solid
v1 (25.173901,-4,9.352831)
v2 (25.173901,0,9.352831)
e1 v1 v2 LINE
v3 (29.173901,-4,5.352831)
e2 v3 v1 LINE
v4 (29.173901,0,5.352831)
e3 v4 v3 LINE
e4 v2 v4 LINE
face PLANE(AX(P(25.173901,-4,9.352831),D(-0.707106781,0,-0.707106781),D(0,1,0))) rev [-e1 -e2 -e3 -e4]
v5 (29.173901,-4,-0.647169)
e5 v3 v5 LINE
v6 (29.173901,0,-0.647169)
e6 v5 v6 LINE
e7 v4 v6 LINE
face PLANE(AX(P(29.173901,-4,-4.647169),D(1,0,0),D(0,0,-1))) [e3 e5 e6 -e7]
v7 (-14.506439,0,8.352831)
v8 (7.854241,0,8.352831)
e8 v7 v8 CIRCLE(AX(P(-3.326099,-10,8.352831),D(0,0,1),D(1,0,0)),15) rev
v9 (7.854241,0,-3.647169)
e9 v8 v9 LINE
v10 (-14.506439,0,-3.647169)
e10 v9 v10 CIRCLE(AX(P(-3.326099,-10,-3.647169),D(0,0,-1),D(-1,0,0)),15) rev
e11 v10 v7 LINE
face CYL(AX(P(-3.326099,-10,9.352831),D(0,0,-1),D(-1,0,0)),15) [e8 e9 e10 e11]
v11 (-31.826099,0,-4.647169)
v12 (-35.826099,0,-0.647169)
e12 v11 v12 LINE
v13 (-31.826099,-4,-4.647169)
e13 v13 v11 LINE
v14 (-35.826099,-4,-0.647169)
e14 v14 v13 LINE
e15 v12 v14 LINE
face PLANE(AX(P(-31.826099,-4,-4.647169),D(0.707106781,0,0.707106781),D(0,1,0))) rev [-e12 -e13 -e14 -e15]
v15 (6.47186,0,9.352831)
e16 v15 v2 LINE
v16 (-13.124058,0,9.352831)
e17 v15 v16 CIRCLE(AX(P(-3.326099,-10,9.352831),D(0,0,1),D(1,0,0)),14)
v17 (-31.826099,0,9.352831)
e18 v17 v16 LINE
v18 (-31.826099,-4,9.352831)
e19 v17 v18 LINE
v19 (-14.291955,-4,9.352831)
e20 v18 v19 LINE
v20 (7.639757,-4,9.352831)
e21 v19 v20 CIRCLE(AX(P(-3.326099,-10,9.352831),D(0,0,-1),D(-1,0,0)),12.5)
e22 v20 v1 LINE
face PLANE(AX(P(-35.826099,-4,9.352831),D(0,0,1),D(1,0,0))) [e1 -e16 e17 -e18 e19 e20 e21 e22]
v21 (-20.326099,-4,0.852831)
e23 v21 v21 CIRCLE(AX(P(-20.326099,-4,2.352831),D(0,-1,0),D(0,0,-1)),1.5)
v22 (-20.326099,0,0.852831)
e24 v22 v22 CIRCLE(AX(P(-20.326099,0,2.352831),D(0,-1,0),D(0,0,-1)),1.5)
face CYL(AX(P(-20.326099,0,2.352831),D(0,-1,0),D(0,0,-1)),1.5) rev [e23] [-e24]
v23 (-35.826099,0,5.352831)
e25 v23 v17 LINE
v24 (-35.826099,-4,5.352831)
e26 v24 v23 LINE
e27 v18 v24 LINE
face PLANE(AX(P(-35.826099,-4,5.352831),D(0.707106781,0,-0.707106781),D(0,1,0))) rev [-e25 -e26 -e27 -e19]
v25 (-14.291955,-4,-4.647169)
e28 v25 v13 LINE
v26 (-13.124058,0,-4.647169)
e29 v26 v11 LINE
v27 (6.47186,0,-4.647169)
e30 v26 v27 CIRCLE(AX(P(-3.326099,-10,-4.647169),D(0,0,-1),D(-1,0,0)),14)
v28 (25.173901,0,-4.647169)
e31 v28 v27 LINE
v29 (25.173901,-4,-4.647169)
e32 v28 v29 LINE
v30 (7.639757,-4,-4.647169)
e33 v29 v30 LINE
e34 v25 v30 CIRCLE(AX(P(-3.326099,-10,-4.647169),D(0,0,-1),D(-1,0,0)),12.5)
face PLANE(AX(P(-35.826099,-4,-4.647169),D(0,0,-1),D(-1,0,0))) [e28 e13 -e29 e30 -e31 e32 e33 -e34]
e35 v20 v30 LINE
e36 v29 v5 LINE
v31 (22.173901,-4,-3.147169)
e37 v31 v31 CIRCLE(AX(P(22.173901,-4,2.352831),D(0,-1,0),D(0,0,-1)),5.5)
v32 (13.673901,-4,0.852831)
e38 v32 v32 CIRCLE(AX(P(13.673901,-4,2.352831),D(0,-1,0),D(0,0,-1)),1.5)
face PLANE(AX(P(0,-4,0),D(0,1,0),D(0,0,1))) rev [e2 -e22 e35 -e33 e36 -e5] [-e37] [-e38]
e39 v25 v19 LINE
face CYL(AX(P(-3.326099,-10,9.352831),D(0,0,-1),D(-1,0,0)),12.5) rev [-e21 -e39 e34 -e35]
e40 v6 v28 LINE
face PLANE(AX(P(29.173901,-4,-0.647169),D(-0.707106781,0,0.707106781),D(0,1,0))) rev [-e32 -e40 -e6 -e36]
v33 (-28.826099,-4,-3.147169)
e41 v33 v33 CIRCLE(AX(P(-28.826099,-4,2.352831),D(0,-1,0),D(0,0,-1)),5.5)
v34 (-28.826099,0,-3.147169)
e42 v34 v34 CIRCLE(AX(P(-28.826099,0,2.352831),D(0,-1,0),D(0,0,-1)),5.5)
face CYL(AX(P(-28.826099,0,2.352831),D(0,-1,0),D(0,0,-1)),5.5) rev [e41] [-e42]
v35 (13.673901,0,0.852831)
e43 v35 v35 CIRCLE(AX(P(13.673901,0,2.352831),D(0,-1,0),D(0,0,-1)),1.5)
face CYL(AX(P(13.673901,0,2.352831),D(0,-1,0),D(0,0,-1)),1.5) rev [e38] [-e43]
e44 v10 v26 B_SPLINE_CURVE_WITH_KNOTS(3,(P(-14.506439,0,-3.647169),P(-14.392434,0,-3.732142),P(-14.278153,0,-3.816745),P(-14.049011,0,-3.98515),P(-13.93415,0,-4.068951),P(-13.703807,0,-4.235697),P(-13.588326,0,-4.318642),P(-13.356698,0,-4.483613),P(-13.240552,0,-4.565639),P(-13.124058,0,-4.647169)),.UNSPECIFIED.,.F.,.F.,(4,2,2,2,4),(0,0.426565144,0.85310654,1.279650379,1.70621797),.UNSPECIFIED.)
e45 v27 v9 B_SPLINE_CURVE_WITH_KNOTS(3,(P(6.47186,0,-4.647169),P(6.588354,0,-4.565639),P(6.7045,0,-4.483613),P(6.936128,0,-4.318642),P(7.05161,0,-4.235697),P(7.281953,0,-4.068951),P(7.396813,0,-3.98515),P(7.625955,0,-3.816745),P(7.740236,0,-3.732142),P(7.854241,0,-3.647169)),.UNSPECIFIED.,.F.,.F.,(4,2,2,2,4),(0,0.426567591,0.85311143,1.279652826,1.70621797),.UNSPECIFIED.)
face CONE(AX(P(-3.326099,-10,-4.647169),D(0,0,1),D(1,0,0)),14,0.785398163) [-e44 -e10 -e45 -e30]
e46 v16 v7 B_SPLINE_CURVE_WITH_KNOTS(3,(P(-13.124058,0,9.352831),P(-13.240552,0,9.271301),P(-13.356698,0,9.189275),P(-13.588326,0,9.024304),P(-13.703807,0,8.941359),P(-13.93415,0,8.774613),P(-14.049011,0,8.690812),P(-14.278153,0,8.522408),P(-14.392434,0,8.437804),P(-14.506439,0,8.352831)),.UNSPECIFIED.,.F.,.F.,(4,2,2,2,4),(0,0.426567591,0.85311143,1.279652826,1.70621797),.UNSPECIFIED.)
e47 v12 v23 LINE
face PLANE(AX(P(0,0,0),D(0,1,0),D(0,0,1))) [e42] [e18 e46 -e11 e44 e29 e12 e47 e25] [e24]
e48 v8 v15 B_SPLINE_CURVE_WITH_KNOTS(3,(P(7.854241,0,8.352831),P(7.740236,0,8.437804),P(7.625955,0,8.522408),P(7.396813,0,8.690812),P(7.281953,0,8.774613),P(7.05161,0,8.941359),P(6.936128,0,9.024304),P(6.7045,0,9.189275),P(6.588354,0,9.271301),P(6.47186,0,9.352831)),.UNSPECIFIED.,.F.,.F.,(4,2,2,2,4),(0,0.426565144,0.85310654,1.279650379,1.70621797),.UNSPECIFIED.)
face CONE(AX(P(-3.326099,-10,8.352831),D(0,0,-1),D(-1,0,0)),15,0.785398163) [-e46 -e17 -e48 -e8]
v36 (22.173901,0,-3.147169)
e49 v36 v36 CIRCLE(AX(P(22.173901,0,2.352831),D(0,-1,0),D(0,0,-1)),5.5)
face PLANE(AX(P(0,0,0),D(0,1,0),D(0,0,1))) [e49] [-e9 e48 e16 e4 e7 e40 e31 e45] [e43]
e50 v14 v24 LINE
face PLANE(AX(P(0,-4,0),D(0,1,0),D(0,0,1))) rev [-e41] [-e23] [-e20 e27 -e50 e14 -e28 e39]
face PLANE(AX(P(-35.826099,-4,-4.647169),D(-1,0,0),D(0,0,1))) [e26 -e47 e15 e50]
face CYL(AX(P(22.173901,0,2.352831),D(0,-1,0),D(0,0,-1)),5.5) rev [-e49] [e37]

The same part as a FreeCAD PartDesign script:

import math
import FreeCAD as App
import Part
import Sketcher
from FreeCAD import Vector


def edges_at(feature, points):
    """Names of the edges that pass closest to the given points."""
    edges = feature.Shape.Edges
    near = lambda p: min(range(len(edges)), key=lambda i: edges[i].distToShape(Part.Vertex(*p))[0])
    return sorted({f"Edge{near(p) + 1}" for p in points})


def add_polygon(sketch, points):
    """Adds a closed chain of lines whose ends are joined by coincident constraints."""
    first, n = sketch.GeometryCount, len(points)
    for a, b in zip(points, points[1:] + points[:1]):
        sketch.addGeometry(Part.LineSegment(App.Vector(*a, 0), App.Vector(*b, 0)), False)
    for i in range(n):
        sketch.addConstraint(Sketcher.Constraint("Coincident", first + i, 2, first + (i + 1) % n, 1))

doc = App.newDocument("Part")
body = doc.addObject("PartDesign::Body", "Body")

sketch1 = doc.addObject("Sketcher::SketchObject", "Sketch")
body.addObject(sketch1)
sketch1.AttachmentSupport = (doc.XZ_Plane, [""])
sketch1.MapMode = "FlatFace"
add_polygon(sketch1, [(-36, -5), (-36, 9), (29, 9), (29, -5)])
sketch1.addConstraint(Sketcher.Constraint("Vertical", 0))
sketch1.addConstraint(Sketcher.Constraint("Horizontal", 1))
sketch1.addConstraint(Sketcher.Constraint("Vertical", 2))
sketch1.addConstraint(Sketcher.Constraint("Horizontal", 3))
sketch1.addConstraint(Sketcher.Constraint("DistanceX", 1, 1, 1, 2, 65.0))
sketch1.addConstraint(Sketcher.Constraint("DistanceY", 0, 1, 0, 2, 14.0))
sketch1.addConstraint(Sketcher.Constraint("DistanceX", 0, 2, -1, 1, 35.826099))
sketch1.addConstraint(Sketcher.Constraint("DistanceY", -1, 1, 0, 2, 9.352831))
pad1 = doc.addObject("PartDesign::Pad", "Pad")
body.addObject(pad1)
pad1.Profile = sketch1
pad1.Length = 4

sketch2 = doc.addObject("Sketcher::SketchObject", "Sketch001")
body.addObject(sketch2)
sketch2.AttachmentSupport = (doc.XZ_Plane, [""])
sketch2.MapMode = "FlatFace"
sketch2.AttachmentOffset = App.Placement(Vector(0, 0, 4), App.Rotation())
sketch2.addGeometry(Part.Circle(Vector(-28.8, 2.4, 0), Vector(0, 0, 1), 5.5), False)
sketch2.addGeometry(Part.Circle(Vector(22.2, 2.4, 0), Vector(0, 0, 1), 5.5), False)
sketch2.addGeometry(Part.Circle(Vector(-20.3, 2.4, 0), Vector(0, 0, 1), 1.5), False)
sketch2.addGeometry(Part.Circle(Vector(13.7, 2.4, 0), Vector(0, 0, 1), 1.5), False)
sketch2.addConstraint(Sketcher.Constraint("Equal", 0, 1))
sketch2.addConstraint(Sketcher.Constraint("Equal", 2, 3))
sketch2.addConstraint(Sketcher.Constraint("Horizontal", 0, 3, 1, 3))
sketch2.addConstraint(Sketcher.Constraint("Horizontal", 1, 3, 2, 3))
sketch2.addConstraint(Sketcher.Constraint("Horizontal", 2, 3, 3, 3))
sketch2.addConstraint(Sketcher.Constraint("Diameter", 0, 11.0))
sketch2.addConstraint(Sketcher.Constraint("Diameter", 2, 3.0))
sketch2.addConstraint(Sketcher.Constraint("DistanceX", 0, 3, 1, 3, 51.0))
sketch2.addConstraint(Sketcher.Constraint("DistanceX", 2, 3, 3, 3, 34.0))
sketch2.addConstraint(Sketcher.Constraint("DistanceX", 0, 3, 2, 3, 8.5))
sketch2.addConstraint(Sketcher.Constraint("DistanceX", 0, 3, -1, 1, 28.826099))
sketch2.addConstraint(Sketcher.Constraint("DistanceY", -1, 1, 0, 3, 2.352831))
pocket1 = doc.addObject("PartDesign::Pocket", "Pocket")
body.addObject(pocket1)
pocket1.Profile = sketch2
pocket1.Length = 4

sketch3 = doc.addObject("Sketcher::SketchObject", "Sketch002")
body.addObject(sketch3)
sketch3.AttachmentSupport = (doc.XY_Plane, [""])
sketch3.MapMode = "FlatFace"
sketch3.AttachmentOffset = App.Placement(Vector(0, 0, -4.647169), App.Rotation())
sketch3.addGeometry(Part.LineSegment(Vector(10, -4, 0), Vector(-17, -4, 0)), False)
sketch3.addGeometry(Part.ArcOfCircle(Part.Circle(Vector(-3, -10, 0), Vector(0, 0, 1), 15), math.radians(24), math.radians(156)), False)
sketch3.addConstraint(Sketcher.Constraint("Coincident", 0, 1, 1, 1))
sketch3.addConstraint(Sketcher.Constraint("Coincident", 1, 2, 0, 2))
sketch3.addConstraint(Sketcher.Constraint("Horizontal", 0))
sketch3.addConstraint(Sketcher.Constraint("Radius", 1, 15.0))
sketch3.addConstraint(Sketcher.Constraint("DistanceY", 1, 3, -1, 1, 10.0))
sketch3.addConstraint(Sketcher.Constraint("DistanceY", 0, 1, -1, 1, 4.0))
sketch3.addConstraint(Sketcher.Constraint("DistanceX", 1, 3, -1, 1, 3.326099))
pad2 = doc.addObject("PartDesign::Pad", "Pad001")
body.addObject(pad2)
pad2.Profile = sketch3
pad2.Length = 14

sketch4 = doc.addObject("Sketcher::SketchObject", "Sketch003")
body.addObject(sketch4)
sketch4.AttachmentSupport = (doc.XY_Plane, [""])
sketch4.MapMode = "FlatFace"
sketch4.AttachmentOffset = App.Placement(Vector(0, 0, -4.647169), App.Rotation())
sketch4.addGeometry(Part.Circle(Vector(-3, -10, 0), Vector(0, 0, 1), 12), False)
sketch4.addConstraint(Sketcher.Constraint("Diameter", 0, 25.0))
sketch4.addConstraint(Sketcher.Constraint("DistanceY", 0, 3, -1, 1, 10.0))
sketch4.addConstraint(Sketcher.Constraint("DistanceX", 0, 3, -1, 1, 3.326099))
pocket2 = doc.addObject("PartDesign::Pocket", "Pocket001")
body.addObject(pocket2)
pocket2.Profile = sketch4
pocket2.Type = "ThroughAll"
pocket2.Reversed = True
doc.recompute()

chamfer = doc.addObject("PartDesign::Chamfer", "Chamfer")
body.addObject(chamfer)
chamfer.Base = (pocket2, edges_at(pocket2, [
    (-35.826, -2, -4.647),
    (29.174, -2, -4.647),
    (29.174, -2, 9.353),
    (-35.826, -2, 9.353),
]))
chamfer.Size = 4
doc.recompute()

chamfer2 = doc.addObject("PartDesign::Chamfer", "Chamfer001")
body.addObject(chamfer2)
chamfer2.Base = (chamfer, edges_at(chamfer, [(-3.326, 5, 9.353), (-3.326, 5, -4.647)]))
chamfer2.Size = 1

doc.recompute()
